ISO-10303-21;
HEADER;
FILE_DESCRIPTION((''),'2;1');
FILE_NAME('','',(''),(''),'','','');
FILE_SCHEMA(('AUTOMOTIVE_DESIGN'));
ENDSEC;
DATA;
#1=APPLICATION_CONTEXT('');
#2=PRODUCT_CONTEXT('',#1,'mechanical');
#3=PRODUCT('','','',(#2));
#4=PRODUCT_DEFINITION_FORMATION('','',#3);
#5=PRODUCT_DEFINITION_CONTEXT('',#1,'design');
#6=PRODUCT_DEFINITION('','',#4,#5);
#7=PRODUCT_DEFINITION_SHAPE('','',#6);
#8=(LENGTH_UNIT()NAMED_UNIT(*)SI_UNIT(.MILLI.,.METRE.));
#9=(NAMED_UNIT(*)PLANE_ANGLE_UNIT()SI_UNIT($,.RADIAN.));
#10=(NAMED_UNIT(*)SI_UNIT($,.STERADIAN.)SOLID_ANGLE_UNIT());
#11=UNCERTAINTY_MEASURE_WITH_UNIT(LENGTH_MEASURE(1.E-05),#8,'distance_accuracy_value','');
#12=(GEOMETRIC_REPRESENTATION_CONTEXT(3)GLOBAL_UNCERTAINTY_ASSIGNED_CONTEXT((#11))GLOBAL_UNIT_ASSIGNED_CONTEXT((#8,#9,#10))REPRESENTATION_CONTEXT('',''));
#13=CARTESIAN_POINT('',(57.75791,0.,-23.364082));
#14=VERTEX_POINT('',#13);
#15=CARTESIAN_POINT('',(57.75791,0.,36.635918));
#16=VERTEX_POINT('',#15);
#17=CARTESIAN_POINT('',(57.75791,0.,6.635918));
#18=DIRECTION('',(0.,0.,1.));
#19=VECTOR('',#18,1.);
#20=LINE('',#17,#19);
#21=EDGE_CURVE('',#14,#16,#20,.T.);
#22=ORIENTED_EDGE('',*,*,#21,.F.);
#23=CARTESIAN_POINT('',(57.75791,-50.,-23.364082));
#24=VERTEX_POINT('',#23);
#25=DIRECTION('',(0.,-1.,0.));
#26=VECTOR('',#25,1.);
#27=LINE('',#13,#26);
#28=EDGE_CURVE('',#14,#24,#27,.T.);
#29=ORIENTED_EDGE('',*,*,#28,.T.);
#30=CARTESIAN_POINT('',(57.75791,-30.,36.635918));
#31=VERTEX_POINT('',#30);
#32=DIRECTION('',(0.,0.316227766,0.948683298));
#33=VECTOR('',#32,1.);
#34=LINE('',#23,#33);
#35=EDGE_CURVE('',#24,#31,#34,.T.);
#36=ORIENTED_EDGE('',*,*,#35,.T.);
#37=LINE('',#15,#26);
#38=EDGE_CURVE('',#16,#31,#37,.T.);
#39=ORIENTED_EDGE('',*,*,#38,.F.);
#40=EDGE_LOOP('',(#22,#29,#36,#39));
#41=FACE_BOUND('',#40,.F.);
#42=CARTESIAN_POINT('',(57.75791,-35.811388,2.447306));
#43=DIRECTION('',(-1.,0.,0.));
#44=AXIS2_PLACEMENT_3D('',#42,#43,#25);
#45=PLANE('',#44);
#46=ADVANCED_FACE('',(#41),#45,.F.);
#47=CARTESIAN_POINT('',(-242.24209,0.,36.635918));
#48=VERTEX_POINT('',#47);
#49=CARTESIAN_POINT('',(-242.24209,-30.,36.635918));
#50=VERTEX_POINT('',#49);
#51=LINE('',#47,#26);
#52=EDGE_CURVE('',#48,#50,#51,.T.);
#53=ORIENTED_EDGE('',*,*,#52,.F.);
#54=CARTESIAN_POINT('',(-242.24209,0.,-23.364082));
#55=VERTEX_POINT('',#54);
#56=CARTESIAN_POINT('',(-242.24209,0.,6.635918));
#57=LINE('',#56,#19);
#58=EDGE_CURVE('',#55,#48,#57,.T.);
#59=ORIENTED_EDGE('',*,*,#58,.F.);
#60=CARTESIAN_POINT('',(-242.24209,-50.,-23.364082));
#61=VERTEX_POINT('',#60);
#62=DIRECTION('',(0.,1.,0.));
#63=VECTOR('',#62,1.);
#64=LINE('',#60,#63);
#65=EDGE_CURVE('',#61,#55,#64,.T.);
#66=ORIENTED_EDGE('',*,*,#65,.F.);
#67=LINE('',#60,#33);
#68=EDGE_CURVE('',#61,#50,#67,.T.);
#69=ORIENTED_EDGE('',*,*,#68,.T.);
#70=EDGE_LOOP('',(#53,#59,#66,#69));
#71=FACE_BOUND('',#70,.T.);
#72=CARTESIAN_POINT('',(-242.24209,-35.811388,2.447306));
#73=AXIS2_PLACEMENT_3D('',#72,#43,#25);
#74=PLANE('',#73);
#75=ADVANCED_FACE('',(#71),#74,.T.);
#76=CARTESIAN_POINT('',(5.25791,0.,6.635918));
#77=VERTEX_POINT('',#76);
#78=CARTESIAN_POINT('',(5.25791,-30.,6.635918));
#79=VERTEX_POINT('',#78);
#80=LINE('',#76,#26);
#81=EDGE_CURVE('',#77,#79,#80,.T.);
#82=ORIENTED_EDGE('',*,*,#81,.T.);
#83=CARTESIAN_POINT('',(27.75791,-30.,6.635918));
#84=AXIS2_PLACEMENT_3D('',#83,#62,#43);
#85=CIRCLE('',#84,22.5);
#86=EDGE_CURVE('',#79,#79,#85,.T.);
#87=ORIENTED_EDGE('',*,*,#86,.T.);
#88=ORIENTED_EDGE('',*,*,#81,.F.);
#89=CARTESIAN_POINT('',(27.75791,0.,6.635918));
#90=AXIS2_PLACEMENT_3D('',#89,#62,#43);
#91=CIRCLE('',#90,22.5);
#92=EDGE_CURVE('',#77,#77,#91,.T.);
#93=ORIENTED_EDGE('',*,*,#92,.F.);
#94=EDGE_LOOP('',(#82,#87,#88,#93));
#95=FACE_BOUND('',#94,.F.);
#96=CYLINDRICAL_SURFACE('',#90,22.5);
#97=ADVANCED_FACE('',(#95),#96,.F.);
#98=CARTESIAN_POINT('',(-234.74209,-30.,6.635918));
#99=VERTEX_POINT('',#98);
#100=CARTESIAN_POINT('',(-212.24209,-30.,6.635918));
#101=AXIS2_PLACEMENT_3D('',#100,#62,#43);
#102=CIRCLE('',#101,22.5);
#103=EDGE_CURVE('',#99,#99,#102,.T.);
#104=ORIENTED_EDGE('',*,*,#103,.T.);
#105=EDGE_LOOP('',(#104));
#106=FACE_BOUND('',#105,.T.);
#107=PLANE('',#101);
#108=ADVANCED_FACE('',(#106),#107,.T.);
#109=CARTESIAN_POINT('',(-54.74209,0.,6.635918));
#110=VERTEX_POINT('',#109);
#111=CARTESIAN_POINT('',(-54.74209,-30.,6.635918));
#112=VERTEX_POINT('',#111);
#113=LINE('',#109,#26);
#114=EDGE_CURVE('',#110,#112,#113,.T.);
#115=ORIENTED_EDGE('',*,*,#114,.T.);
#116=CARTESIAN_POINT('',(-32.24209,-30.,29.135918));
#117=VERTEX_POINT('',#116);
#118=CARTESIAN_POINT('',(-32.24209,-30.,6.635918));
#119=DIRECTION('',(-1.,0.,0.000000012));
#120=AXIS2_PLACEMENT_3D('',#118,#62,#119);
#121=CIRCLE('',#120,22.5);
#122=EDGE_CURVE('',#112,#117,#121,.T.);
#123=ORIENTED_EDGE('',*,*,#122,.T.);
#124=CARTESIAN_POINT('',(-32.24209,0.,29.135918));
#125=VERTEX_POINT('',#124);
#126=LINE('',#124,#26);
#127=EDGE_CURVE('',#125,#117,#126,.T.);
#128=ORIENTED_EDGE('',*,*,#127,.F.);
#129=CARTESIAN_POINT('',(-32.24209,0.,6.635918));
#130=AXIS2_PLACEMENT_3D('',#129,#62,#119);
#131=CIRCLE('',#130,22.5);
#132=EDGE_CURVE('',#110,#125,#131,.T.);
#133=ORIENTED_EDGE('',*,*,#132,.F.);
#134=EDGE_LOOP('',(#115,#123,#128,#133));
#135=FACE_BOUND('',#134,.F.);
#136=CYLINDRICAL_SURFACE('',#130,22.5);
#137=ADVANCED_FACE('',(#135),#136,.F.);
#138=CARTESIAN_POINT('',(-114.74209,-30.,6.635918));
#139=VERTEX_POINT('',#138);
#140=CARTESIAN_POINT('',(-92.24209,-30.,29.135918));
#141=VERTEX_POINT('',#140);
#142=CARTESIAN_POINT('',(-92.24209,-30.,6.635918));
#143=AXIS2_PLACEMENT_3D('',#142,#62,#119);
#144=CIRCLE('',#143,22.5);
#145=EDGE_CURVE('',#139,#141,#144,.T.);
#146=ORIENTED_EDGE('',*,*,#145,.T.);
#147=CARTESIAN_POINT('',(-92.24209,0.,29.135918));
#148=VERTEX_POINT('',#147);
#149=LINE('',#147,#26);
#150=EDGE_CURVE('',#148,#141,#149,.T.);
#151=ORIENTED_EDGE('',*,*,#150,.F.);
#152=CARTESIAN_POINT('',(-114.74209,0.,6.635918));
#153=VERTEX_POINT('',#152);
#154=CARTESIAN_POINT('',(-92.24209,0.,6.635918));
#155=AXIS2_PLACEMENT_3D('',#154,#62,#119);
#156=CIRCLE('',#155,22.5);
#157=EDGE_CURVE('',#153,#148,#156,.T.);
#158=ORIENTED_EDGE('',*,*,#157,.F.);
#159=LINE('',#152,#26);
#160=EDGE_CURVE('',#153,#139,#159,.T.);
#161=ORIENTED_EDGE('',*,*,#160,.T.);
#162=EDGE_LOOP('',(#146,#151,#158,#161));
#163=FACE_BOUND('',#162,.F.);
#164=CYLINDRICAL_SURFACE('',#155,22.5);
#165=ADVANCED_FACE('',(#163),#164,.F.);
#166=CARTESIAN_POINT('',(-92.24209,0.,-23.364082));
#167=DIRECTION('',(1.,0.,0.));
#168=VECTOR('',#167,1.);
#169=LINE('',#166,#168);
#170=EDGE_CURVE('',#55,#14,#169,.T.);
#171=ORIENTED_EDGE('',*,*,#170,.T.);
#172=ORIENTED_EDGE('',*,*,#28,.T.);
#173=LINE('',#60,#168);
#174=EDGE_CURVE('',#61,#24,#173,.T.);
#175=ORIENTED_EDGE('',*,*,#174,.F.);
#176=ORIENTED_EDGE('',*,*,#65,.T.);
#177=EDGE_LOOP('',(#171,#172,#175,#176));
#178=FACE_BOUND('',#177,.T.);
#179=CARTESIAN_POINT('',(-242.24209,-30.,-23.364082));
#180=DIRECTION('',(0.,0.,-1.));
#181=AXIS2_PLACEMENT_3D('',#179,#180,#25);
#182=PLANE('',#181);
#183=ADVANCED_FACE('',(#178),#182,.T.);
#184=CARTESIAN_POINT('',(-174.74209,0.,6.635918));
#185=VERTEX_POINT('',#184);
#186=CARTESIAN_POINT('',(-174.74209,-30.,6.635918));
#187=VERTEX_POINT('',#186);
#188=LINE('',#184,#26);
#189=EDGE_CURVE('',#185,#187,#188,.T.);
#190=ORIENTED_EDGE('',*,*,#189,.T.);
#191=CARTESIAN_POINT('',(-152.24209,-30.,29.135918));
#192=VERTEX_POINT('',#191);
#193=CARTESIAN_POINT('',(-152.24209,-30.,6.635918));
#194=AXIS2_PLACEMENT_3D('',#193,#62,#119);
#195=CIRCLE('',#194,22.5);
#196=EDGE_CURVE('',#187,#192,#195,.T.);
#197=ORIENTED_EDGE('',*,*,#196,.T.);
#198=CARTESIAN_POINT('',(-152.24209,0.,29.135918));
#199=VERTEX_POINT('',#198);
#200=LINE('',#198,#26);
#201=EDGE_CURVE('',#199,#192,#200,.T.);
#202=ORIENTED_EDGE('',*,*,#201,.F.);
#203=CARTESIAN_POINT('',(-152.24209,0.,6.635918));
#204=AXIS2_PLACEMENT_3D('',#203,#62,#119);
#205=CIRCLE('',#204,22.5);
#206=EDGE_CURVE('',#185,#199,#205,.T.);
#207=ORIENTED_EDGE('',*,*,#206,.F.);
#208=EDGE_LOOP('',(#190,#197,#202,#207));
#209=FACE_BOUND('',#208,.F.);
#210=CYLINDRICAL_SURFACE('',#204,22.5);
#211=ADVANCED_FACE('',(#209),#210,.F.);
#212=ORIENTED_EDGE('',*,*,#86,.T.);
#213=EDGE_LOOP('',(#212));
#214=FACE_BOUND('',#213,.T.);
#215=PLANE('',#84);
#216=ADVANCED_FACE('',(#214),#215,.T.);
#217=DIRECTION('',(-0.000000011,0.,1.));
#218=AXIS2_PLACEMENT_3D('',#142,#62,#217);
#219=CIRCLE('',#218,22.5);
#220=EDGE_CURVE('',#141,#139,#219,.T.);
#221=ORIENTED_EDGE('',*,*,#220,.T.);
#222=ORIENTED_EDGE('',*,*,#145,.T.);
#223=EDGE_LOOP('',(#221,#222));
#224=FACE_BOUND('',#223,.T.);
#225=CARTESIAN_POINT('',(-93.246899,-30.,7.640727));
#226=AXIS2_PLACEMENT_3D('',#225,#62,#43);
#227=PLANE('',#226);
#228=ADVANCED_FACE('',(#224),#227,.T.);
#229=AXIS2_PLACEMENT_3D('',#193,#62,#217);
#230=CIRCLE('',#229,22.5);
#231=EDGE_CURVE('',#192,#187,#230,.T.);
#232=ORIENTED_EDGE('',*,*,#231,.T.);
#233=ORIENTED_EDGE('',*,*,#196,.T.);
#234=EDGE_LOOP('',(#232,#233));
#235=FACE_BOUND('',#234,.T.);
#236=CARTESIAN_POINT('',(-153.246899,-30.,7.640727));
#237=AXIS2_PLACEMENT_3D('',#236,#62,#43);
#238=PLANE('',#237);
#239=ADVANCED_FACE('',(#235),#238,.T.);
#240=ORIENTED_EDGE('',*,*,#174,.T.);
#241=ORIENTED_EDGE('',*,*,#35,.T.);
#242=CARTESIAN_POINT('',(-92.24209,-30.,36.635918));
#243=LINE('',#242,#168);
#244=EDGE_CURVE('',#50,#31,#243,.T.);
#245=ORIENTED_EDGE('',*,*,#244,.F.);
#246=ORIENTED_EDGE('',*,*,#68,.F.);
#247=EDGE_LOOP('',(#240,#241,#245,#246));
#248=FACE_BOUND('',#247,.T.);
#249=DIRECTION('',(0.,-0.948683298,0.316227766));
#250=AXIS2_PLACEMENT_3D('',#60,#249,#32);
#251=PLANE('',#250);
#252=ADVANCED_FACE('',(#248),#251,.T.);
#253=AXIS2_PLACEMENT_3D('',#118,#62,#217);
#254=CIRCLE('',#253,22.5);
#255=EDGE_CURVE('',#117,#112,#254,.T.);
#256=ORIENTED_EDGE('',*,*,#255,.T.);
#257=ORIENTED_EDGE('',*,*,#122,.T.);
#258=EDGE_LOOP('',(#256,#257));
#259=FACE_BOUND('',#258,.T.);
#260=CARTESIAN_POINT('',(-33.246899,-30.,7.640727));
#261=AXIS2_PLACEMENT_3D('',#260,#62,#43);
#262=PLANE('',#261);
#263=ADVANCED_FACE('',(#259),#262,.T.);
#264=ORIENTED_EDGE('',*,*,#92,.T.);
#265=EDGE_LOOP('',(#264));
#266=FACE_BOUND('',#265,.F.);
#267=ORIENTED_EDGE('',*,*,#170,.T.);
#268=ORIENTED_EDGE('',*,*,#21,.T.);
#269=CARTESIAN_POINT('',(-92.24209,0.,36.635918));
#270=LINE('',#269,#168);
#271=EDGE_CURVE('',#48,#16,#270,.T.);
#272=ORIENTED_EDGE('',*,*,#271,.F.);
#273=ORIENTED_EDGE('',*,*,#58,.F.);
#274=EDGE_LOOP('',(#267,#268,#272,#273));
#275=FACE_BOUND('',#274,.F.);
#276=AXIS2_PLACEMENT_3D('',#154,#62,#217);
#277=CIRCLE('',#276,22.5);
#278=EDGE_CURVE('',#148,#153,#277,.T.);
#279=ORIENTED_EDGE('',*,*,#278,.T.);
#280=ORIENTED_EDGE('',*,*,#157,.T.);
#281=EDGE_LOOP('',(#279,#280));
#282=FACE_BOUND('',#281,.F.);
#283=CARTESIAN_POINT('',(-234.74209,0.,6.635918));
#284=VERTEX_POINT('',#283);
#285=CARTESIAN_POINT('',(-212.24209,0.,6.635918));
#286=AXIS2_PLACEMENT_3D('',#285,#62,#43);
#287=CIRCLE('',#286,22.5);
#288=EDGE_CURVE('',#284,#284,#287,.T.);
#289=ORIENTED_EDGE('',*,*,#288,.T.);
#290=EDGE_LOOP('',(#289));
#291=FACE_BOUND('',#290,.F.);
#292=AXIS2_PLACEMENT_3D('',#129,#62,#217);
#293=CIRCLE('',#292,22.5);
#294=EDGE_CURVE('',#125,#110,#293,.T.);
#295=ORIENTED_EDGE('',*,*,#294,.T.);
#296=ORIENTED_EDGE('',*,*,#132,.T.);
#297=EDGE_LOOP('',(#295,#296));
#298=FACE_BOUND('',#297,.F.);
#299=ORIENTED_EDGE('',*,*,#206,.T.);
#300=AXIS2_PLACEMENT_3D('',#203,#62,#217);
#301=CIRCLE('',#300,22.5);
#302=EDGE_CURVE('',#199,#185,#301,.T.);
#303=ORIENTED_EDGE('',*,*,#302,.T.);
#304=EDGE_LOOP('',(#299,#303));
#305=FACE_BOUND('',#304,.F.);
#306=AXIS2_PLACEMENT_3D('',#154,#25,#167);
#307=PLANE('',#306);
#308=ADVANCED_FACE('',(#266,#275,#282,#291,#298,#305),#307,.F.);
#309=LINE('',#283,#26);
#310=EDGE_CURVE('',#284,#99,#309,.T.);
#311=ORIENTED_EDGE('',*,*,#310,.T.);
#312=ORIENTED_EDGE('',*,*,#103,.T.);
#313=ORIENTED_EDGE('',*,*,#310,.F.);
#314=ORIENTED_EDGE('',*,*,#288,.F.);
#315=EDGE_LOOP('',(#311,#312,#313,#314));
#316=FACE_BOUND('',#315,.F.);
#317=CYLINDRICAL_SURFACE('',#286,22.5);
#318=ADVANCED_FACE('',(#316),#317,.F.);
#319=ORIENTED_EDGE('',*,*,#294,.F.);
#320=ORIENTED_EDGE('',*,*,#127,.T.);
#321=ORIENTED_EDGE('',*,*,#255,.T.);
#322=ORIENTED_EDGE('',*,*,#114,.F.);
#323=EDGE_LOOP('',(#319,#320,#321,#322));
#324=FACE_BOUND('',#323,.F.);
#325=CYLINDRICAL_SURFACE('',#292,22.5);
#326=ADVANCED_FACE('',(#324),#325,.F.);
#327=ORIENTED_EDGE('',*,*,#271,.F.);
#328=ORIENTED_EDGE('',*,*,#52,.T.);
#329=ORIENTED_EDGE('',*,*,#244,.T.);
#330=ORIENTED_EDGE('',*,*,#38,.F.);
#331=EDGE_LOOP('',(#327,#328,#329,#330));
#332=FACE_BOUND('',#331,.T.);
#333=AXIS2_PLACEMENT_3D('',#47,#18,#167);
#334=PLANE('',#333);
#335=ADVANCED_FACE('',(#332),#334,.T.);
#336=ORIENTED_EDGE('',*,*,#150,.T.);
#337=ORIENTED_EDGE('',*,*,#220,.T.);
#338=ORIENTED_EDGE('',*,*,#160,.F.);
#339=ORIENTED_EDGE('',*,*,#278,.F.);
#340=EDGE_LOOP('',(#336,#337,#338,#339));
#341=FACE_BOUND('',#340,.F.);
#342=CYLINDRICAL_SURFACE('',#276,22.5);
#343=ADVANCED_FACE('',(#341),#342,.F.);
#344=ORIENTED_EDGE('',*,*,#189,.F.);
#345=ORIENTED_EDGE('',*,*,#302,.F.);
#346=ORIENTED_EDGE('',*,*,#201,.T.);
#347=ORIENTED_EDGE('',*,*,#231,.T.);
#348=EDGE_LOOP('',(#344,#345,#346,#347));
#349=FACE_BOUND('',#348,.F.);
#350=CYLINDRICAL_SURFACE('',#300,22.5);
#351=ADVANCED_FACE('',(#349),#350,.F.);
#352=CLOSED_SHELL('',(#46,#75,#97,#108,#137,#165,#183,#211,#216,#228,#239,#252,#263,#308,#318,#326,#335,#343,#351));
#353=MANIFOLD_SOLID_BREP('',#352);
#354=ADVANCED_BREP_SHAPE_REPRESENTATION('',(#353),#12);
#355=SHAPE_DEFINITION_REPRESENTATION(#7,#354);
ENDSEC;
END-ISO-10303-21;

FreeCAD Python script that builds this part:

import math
import FreeCAD as App
import Part
import Sketcher
from FreeCAD import Vector

doc = App.newDocument("Part")
body = doc.addObject("PartDesign::Body", "Body")

sketch1 = body.newObject("Sketcher::SketchObject", "Sketch")
sketch1.AttachmentSupport = (doc.getObject("XZ_Plane"), [""])
sketch1.MapMode = "FlatFace"
sketch1.addGeometry(Part.LineSegment(Vector(-242, 37, 0), Vector(-242, -23, 0)), False)
sketch1.addGeometry(Part.LineSegment(Vector(-242, -23, 0), Vector(58, -23, 0)), False)
sketch1.addGeometry(Part.LineSegment(Vector(58, -23, 0), Vector(58, 37, 0)), False)
sketch1.addGeometry(Part.LineSegment(Vector(58, 37, 0), Vector(-242, 37, 0)), False)
sketch1.addConstraint(Sketcher.Constraint("Coincident", 0, 2, 1, 1))
sketch1.addConstraint(Sketcher.Constraint("Coincident", 1, 2, 2, 1))
sketch1.addConstraint(Sketcher.Constraint("Coincident", 2, 2, 3, 1))
sketch1.addConstraint(Sketcher.Constraint("Coincident", 3, 2, 0, 1))
sketch1.addConstraint(Sketcher.Constraint("Vertical", 0))
sketch1.addConstraint(Sketcher.Constraint("Horizontal", 1))
sketch1.addConstraint(Sketcher.Constraint("Vertical", 2))
sketch1.addConstraint(Sketcher.Constraint("Horizontal", 3))
sketch1.addConstraint(Sketcher.Constraint("DistanceX", 1, 1, 1, 2, 300.0))
sketch1.addConstraint(Sketcher.Constraint("DistanceY", 0, 2, 0, 1, 60.0))
sketch1.addConstraint(Sketcher.Constraint("DistanceX", 0, 2, -1, 1, 242.24209))
sketch1.addConstraint(Sketcher.Constraint("DistanceY", 0, 2, -1, 1, 23.364082))
pad1 = body.newObject("PartDesign::Pad", "Pad")
pad1.Profile = sketch1
pad1.Length = 30

sketch2 = body.newObject("Sketcher::SketchObject", "Sketch001")
sketch2.AttachmentSupport = (doc.getObject("YZ_Plane"), [""])
sketch2.MapMode = "FlatFace"
sketch2.AttachmentOffset = App.Placement(Vector(0, 0, -242.24209), App.Rotation())
sketch2.addGeometry(Part.LineSegment(Vector(-30, 37, 0), Vector(-30, -23, 0)), False)
sketch2.addGeometry(Part.LineSegment(Vector(-30, -23, 0), Vector(-50, -23, 0)), False)
sketch2.addGeometry(Part.LineSegment(Vector(-50, -23, 0), Vector(-30, 37, 0)), False)
sketch2.addConstraint(Sketcher.Constraint("Coincident", 0, 2, 1, 1))
sketch2.addConstraint(Sketcher.Constraint("Coincident", 1, 2, 2, 1))
sketch2.addConstraint(Sketcher.Constraint("Coincident", 2, 2, 0, 1))
sketch2.addConstraint(Sketcher.Constraint("Vertical", 0))
sketch2.addConstraint(Sketcher.Constraint("Horizontal", 1))
sketch2.addConstraint(Sketcher.Constraint("DistanceX", 1, 2, 1, 1, 20.0))
sketch2.addConstraint(Sketcher.Constraint("DistanceY", 0, 2, 0, 1, 60.0))
sketch2.addConstraint(Sketcher.Constraint("DistanceX", 0, 2, -1, 1, 30.0))
sketch2.addConstraint(Sketcher.Constraint("DistanceY", 0, 2, -1, 1, 23.364082))
pad2 = body.newObject("PartDesign::Pad", "Pad001")
pad2.Profile = sketch2
pad2.Length = 300

sketch3 = body.newObject("Sketcher::SketchObject", "Sketch002")
sketch3.AttachmentSupport = (doc.getObject("XZ_Plane"), [""])
sketch3.MapMode = "FlatFace"
sketch3.addGeometry(Part.Circle(Vector(28, 7, 0), Vector(0, 0, 1), 22), False)
sketch3.addGeometry(Part.ArcOfCircle(Part.Circle(Vector(-32, 7, 0), Vector(0, 0, 1), 23), math.radians(90), math.radians(180)), False)
sketch3.addGeometry(Part.ArcOfCircle(Part.Circle(Vector(-32, 7, 0), Vector(0, 0, 1), 23), math.radians(180), math.radians(450)), False)
sketch3.addGeometry(Part.ArcOfCircle(Part.Circle(Vector(-92, 7, 0), Vector(0, 0, 1), 23), math.radians(90), math.radians(180)), False)
sketch3.addGeometry(Part.ArcOfCircle(Part.Circle(Vector(-92, 7, 0), Vector(0, 0, 1), 23), math.radians(180), math.radians(450)), False)
sketch3.addGeometry(Part.ArcOfCircle(Part.Circle(Vector(-152, 7, 0), Vector(0, 0, 1), 23), math.radians(90), math.radians(180)), False)
sketch3.addGeometry(Part.ArcOfCircle(Part.Circle(Vector(-152, 7, 0), Vector(0, 0, 1), 23), math.radians(180), math.radians(450)), False)
sketch3.addGeometry(Part.Circle(Vector(-212, 7, 0), Vector(0, 0, 1), 22), False)
sketch3.addConstraint(Sketcher.Constraint("Tangent", 1, 1, 2, 2))
sketch3.addConstraint(Sketcher.Constraint("Coincident", 2, 1, 1, 2))
sketch3.addConstraint(Sketcher.Constraint("Tangent", 3, 1, 4, 2))
sketch3.addConstraint(Sketcher.Constraint("Coincident", 4, 1, 3, 2))
sketch3.addConstraint(Sketcher.Constraint("Tangent", 5, 1, 6, 2))
sketch3.addConstraint(Sketcher.Constraint("Coincident", 6, 1, 5, 2))
sketch3.addConstraint(Sketcher.Constraint("Equal", 0, 1))
sketch3.addConstraint(Sketcher.Constraint("Equal", 2, 3))
sketch3.addConstraint(Sketcher.Constraint("Equal", 4, 5))
sketch3.addConstraint(Sketcher.Constraint("Equal", 6, 7))
sketch3.addConstraint(Sketcher.Constraint("Horizontal", 0, 3, 1, 3))
sketch3.addConstraint(Sketcher.Constraint("Horizontal", 2, 3, 3, 3))
sketch3.addConstraint(Sketcher.Constraint("Horizontal", 4, 3, 5, 3))
sketch3.addConstraint(Sketcher.Constraint("Horizontal", 6, 3, 7, 3))
sketch3.addConstraint(Sketcher.Constraint("Horizontal", 7, 3, 2, 1))
sketch3.addConstraint(Sketcher.Constraint("Horizontal", 2, 1, 4, 1))
sketch3.addConstraint(Sketcher.Constraint("Horizontal", 4, 1, 6, 1))
sketch3.addConstraint(Sketcher.Constraint("Vertical", 2, 3, 1, 1))
sketch3.addConstraint(Sketcher.Constraint("Vertical", 4, 3, 3, 1))
sketch3.addConstraint(Sketcher.Constraint("Vertical", 6, 3, 5, 1))
sketch3.addConstraint(Sketcher.Constraint("Diameter", 0, 45.0))
sketch3.addConstraint(Sketcher.Constraint("DistanceX", 1, 3, 0, 3, 60.0))
sketch3.addConstraint(Sketcher.Constraint("DistanceX", 3, 3, 2, 3, 60.0))
sketch3.addConstraint(Sketcher.Constraint("DistanceX", 5, 3, 4, 3, 60.0))
sketch3.addConstraint(Sketcher.Constraint("DistanceX", 7, 3, 6, 3, 60.0))
sketch3.addConstraint(Sketcher.Constraint("DistanceX", -1, 1, 0, 3, 27.75791))
sketch3.addConstraint(Sketcher.Constraint("DistanceY", -1, 1, 0, 3, 6.635918))
pocket1 = body.newObject("PartDesign::Pocket", "Pocket")
pocket1.Profile = sketch3
pocket1.Length = 30
pocket1.Reversed = True

doc.recompute()
